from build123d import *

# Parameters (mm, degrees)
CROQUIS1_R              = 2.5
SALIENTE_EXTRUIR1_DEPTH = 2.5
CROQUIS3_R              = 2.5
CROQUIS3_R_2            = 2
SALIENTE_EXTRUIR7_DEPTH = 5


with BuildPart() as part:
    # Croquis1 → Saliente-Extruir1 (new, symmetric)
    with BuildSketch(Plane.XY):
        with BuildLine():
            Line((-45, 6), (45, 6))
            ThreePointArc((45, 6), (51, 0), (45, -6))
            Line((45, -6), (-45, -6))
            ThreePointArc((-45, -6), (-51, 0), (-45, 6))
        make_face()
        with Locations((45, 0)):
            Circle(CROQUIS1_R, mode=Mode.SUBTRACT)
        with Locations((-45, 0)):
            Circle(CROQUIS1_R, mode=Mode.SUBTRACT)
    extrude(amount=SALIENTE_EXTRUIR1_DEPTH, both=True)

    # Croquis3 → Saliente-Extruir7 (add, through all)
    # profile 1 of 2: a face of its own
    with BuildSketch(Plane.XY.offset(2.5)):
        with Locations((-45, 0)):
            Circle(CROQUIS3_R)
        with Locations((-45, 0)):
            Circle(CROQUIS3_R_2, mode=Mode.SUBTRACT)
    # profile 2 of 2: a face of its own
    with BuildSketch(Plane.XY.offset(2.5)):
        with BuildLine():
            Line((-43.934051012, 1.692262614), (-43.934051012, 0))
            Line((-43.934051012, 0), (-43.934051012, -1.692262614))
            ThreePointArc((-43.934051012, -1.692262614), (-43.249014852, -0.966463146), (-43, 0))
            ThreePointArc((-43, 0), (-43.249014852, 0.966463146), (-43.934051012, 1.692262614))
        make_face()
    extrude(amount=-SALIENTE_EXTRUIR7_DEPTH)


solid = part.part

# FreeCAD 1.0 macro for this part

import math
import FreeCAD as App
import Part
import Sketcher

V = App.Vector
Q = App.Units.Quantity

doc = App.newDocument("Part")
params = doc.addObject("Spreadsheet::Sheet", "Params")
for row, (alias, value) in enumerate([
    ("sketch1_diameter", "5 mm"),
    ("sketch1_radius", "6 mm"),
    ("sketch1_width", "90 mm"),
    ("pad1_length", "5 mm"),
    ("sketch2_diameter", "5 mm"),
    ("sketch2_radius", "2 mm"),
    ("pad2_length", "5 mm"),
], start=1):
    params.set(f"A{row}", alias)
    params.set(f"B{row}", "=" + value)
    params.setAlias(f"B{row}", alias)

body = doc.addObject("PartDesign::Body", "Body")

# Sketch on XY plane
sketch1 = doc.addObject("Sketcher::SketchObject", "Sketch")
body.addObject(sketch1)
sketch1.AttachmentSupport = (doc.XY_Plane, [""])
sketch1.MapMode = "FlatFace"
sketch1.addGeometry([
    Part.LineSegment(V(45, 6, 0), V(-45, 6, 0)),  # 0
    Part.ArcOfCircle(Part.Circle(V(-45, 0, 0), V(0, 0, 1), 6), math.radians(90), math.radians(270)),  # 1
    Part.LineSegment(V(-45, -6, 0), V(45, -6, 0)),  # 2
    Part.ArcOfCircle(Part.Circle(V(45, 0, 0), V(0, 0, 1), 6), math.radians(-90), math.radians(90)),  # 3
    Part.Circle(V(45, 0, 0), V(0, 0, 1), 2.5),  # 4
    Part.Circle(V(-45, 0, 0), V(0, 0, 1), 2.5),  # 5
], False)
sketch1.addConstraint([
    Sketcher.Constraint("Tangent", 0, 2, 1, 1),
    Sketcher.Constraint("Tangent", 1, 2, 2, 1),
    Sketcher.Constraint("Tangent", 2, 2, 3, 1),
    Sketcher.Constraint("Tangent", 3, 2, 0, 1),
    Sketcher.Constraint("Horizontal", 0),
    Sketcher.Constraint("Horizontal", 2),
    Sketcher.Constraint("Coincident", 4, 3, 3, 3),
    Sketcher.Constraint("Coincident", 5, 3, 1, 3),
    Sketcher.Constraint("Equal", 4, 5),
    Sketcher.Constraint("Symmetric", 1, 3, 3, 3, -1, 1),
    Sketcher.Constraint("Diameter", 4, Q("5 mm")),
    Sketcher.Constraint("Radius", 1, Q("6 mm")),
    Sketcher.Constraint("DistanceX", 0, 2, 0, 1, Q("90 mm")),
])
sketch1.setExpression("Constraints[10]", "Params.sketch1_diameter")
sketch1.setExpression("Constraints[11]", "Params.sketch1_radius")
sketch1.setExpression("Constraints[12]", "Params.sketch1_width")
pad1 = doc.addObject("PartDesign::Pad", "Pad")
body.addObject(pad1)
pad1.Profile = sketch1
pad1.setExpression("Length", "Params.pad1_length")
pad1.Midplane = True

# Sketch on XY plane
sketch2 = doc.addObject("Sketcher::SketchObject", "Sketch001")
body.addObject(sketch2)
sketch2.AttachmentSupport = (doc.XY_Plane, [""])
sketch2.MapMode = "FlatFace"
sketch2.AttachmentOffset = App.Placement(V(0, 0, 2.5), App.Rotation())
sketch2.addGeometry([
    Part.Circle(V(-45, 0, 0), V(0, 0, 1), 2.5),
    Part.ArcOfCircle(Part.Circle(V(-45, 0, 0), V(0, 0, 1), 2), math.radians(58), math.radians(302)),
    Part.LineSegment(V(-43.9, 1.7, 0), V(-43.9, -1.7, 0)),
], False)
sketch2.addConstraint([
    Sketcher.Constraint("Coincident", 1, 1, 2, 1),
    Sketcher.Constraint("Coincident", 2, 2, 1, 2),
    Sketcher.Constraint("Vertical", 2),
    Sketcher.Constraint("Coincident", 1, 3, 0, 3),
    Sketcher.Constraint("PointOnObject", 0, 3, -1),
    Sketcher.Constraint("Diameter", 0, Q("5 mm")),
    Sketcher.Constraint("Radius", 1, Q("2 mm")),
    Sketcher.Constraint("DistanceX", 0, 3, -1, 1, Q("45 mm")),
    Sketcher.Constraint("DistanceY", 2, 2, 2, 1, Q("3.384525 mm")),
])
sketch2.setExpression("Constraints[5]", "Params.sketch2_diameter")
sketch2.setExpression("Constraints[6]", "Params.sketch2_radius")
pad2 = doc.addObject("PartDesign::Pad", "Pad001")
body.addObject(pad2)
pad2.Profile = sketch2
pad2.setExpression("Length", "Params.pad2_length")
pad2.Reversed = True

doc.recompute()
